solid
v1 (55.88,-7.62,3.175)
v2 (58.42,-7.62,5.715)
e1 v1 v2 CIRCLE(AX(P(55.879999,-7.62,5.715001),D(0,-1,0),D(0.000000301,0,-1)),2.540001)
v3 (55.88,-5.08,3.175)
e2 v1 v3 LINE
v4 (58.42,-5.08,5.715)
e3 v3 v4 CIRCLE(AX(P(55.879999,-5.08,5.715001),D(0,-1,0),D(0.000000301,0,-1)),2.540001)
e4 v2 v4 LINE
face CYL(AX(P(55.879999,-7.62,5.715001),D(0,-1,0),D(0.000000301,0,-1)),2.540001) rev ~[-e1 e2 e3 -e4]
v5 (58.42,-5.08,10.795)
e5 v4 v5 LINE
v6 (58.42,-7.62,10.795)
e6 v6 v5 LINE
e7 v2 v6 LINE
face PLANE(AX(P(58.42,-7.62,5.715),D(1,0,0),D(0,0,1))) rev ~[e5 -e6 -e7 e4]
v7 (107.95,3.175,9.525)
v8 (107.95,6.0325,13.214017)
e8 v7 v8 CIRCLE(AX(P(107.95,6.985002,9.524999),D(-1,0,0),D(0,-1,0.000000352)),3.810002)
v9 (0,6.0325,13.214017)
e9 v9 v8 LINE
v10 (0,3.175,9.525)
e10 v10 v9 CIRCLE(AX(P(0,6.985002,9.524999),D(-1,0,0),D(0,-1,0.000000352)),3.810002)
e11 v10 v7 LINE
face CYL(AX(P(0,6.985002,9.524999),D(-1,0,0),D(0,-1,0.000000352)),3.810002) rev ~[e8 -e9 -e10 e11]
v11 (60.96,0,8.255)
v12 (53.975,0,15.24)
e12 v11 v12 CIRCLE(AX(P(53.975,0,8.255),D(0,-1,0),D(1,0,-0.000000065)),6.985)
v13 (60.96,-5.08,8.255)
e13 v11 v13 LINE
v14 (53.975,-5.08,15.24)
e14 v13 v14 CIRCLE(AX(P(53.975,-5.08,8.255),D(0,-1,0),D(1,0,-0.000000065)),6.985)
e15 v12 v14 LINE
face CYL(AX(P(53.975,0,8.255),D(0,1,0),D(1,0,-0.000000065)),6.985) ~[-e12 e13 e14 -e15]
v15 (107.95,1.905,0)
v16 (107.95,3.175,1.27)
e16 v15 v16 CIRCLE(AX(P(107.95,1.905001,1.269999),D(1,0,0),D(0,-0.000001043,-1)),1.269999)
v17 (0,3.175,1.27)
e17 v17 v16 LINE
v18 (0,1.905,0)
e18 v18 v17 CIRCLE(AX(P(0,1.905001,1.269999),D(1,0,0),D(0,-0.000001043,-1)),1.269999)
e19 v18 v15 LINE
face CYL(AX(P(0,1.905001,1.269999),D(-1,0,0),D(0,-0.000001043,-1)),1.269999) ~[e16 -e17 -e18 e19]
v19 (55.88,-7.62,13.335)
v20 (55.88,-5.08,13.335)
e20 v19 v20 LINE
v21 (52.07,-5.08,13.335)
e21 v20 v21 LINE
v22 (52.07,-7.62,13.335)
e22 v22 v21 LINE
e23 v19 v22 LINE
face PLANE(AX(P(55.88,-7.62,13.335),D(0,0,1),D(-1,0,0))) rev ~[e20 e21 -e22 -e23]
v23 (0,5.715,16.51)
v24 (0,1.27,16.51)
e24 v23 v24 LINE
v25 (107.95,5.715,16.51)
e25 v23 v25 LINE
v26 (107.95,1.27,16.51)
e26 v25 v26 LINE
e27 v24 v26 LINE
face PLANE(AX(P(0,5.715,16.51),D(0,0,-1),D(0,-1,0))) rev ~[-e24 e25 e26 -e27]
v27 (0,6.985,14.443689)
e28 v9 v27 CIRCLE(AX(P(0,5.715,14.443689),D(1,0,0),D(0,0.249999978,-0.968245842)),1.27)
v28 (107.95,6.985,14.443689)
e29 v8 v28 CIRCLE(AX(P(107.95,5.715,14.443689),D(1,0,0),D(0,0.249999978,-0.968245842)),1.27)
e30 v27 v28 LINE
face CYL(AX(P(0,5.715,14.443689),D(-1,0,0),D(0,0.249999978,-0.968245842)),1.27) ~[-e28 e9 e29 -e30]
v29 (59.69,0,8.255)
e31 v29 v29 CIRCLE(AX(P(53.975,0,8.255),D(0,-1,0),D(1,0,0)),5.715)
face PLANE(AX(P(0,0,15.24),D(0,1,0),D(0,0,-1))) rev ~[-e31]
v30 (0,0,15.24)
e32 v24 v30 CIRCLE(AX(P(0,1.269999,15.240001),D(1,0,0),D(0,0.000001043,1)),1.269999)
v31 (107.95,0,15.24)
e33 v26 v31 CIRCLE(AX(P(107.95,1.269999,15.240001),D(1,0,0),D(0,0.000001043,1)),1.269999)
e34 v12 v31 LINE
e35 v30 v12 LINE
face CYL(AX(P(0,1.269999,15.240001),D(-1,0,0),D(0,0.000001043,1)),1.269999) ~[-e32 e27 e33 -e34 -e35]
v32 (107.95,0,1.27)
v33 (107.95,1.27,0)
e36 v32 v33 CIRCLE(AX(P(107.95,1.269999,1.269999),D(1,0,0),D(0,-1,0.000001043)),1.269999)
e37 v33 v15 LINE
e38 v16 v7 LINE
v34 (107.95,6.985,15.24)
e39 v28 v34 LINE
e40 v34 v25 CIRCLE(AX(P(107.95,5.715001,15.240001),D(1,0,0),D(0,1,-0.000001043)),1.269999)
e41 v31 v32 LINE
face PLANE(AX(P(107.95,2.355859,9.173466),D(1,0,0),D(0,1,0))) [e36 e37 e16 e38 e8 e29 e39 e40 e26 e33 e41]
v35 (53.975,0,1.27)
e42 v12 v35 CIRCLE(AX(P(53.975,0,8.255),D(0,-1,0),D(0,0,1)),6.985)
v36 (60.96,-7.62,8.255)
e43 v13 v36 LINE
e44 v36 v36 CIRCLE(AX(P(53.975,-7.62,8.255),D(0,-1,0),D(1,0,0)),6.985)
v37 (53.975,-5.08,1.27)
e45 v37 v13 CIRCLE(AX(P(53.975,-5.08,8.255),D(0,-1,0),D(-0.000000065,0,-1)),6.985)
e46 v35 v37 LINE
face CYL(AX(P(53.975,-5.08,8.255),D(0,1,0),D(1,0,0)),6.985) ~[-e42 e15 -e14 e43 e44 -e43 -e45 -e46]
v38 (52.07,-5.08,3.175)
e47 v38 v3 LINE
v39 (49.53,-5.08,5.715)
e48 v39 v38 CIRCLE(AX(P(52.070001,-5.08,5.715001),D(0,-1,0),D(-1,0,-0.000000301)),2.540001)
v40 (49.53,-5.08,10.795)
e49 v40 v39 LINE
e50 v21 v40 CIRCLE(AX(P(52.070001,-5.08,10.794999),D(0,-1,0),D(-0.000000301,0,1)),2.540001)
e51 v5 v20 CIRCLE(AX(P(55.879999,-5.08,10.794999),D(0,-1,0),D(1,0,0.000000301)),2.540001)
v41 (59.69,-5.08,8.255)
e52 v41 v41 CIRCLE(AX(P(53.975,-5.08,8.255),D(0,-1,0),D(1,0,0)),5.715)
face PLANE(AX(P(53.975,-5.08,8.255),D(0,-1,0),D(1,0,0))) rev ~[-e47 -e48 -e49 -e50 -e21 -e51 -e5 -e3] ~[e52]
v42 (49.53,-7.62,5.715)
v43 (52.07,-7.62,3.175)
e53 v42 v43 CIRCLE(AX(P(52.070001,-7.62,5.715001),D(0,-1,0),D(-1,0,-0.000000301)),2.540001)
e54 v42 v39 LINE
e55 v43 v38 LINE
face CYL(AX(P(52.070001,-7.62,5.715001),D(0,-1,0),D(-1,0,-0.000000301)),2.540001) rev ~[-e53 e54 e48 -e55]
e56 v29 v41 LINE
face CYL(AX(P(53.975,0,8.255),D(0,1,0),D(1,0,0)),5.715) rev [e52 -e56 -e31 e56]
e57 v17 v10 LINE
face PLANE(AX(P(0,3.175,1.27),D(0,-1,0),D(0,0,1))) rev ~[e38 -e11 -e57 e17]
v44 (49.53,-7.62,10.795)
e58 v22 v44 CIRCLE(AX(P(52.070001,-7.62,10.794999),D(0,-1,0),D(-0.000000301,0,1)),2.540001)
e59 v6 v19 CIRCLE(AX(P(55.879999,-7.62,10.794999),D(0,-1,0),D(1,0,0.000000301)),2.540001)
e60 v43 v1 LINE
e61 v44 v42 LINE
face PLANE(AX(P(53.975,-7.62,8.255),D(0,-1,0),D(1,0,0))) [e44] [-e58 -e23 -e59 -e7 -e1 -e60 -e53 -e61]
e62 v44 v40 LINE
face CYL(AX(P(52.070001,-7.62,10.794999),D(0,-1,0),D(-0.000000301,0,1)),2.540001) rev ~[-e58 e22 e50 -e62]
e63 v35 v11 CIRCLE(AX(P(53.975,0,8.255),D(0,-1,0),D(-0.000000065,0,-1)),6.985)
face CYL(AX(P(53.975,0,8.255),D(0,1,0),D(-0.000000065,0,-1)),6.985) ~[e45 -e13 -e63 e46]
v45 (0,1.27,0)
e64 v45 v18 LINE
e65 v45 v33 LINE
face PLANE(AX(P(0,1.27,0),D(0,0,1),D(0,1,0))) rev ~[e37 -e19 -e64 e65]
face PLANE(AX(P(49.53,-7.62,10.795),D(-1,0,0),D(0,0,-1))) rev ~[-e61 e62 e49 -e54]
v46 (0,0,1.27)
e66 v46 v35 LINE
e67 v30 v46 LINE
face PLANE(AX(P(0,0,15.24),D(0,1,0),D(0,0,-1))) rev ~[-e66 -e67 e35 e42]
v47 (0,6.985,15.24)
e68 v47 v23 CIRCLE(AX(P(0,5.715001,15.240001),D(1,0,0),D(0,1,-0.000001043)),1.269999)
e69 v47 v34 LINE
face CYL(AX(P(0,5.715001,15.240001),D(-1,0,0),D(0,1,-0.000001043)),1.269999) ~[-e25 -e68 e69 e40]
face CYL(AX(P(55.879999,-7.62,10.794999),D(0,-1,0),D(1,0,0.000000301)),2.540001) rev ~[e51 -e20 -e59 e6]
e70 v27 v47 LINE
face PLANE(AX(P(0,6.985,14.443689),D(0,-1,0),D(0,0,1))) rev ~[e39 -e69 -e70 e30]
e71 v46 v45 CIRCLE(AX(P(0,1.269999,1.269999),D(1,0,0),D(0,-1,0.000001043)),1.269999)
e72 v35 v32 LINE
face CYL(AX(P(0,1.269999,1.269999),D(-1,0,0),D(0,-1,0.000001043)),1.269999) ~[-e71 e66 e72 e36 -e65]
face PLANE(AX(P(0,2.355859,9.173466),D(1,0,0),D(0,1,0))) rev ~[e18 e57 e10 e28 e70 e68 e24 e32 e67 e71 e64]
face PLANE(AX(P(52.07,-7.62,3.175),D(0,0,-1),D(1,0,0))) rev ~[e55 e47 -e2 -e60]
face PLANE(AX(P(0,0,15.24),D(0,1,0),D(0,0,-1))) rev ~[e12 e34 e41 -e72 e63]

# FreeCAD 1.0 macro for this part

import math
import FreeCAD as App
import Part
import Sketcher

V = App.Vector
Q = App.Units.Quantity

doc = App.newDocument("Part")
params = doc.addObject("Spreadsheet::Sheet", "Params")
for row, (alias, value) in enumerate([
    ("sketch1_radius", "0.0499999 in"),
    ("sketch1_radius2", "0.1500001 in"),
    ("sketch1_height", "0.55 in"),
    ("sketch1_width", "0.025 in"),
    ("sketch1_height2", "0.325 in"),
    ("pad1_length", "4.25 in"),
    ("sketch2_diameter", "0.45 in"),
    ("sketch2_radius", "0.275 in"),
    ("pad2_length", "0.2 in"),
    ("sketch3_diameter", "0.55 in"),
    ("pad3_length", "0.1 in"),
    ("sketch4_radius", "0.1 in"),
    ("sketch4_height", "0.2 in"),
    ("sketch4_width", "0.15 in"),
    ("pocket1_length", "0.2 in"),
], start=1):
    params.set(f"A{row}", alias)
    params.set(f"B{row}", "=" + value)
    params.setAlias(f"B{row}", alias)

body = doc.addObject("PartDesign::Body", "Body")

sketch1 = doc.addObject("Sketcher::SketchObject", "Sketch")
body.addObject(sketch1)
sketch1.AttachmentSupport = (doc.YZ_Plane, [""])
sketch1.MapMode = "FlatFace"
sketch1.addGeometry(Part.ArcOfCircle(Part.Circle(V(1.3, 1.3, 0), V(0, 0, 1), 1.3), math.radians(180), math.radians(270)), False)
sketch1.addGeometry(Part.LineSegment(V(1.3, 0, 0), V(1.9, 0, 0)), False)
sketch1.addGeometry(Part.ArcOfCircle(Part.Circle(V(1.9, 1.3, 0), V(0, 0, 1), 1.3), math.radians(-90), math.radians(0)), False)
sketch1.addGeometry(Part.LineSegment(V(3.2, 1.3, 0), V(3.2, 9.5, 0)), False)
sketch1.addGeometry(Part.ArcOfCircle(Part.Circle(V(7, 9.5, 0), V(0, 0, 1), 3.8), math.radians(104), math.radians(180)), False)
sketch1.addGeometry(Part.ArcOfCircle(Part.Circle(V(5.7, 14.4, 0), V(0, 0, 1), 1.3), math.radians(-76), math.radians(0)), False)
sketch1.addGeometry(Part.LineSegment(V(7, 14.4, 0), V(7, 15.2, 0)), False)
sketch1.addGeometry(Part.ArcOfCircle(Part.Circle(V(5.7, 15.2, 0), V(0, 0, 1), 1.3), math.radians(0), math.radians(90)), False)
sketch1.addGeometry(Part.LineSegment(V(5.7, 16.5, 0), V(1.3, 16.5, 0)), False)
sketch1.addGeometry(Part.ArcOfCircle(Part.Circle(V(1.3, 15.2, 0), V(0, 0, 1), 1.3), math.radians(90), math.radians(180)), False)
sketch1.addGeometry(Part.LineSegment(V(0, 15.2, 0), V(0, 1.3, 0)), False)
sketch1.addConstraint(Sketcher.Constraint("Tangent", 0, 2, 1, 1))
sketch1.addConstraint(Sketcher.Constraint("Tangent", 1, 2, 2, 1))
sketch1.addConstraint(Sketcher.Constraint("Tangent", 2, 2, 3, 1))
sketch1.addConstraint(Sketcher.Constraint("Tangent", 3, 2, 4, 2))
sketch1.addConstraint(Sketcher.Constraint("Tangent", 4, 1, 5, 1))
sketch1.addConstraint(Sketcher.Constraint("Tangent", 5, 2, 6, 1))
sketch1.addConstraint(Sketcher.Constraint("Tangent", 6, 2, 7, 1))
sketch1.addConstraint(Sketcher.Constraint("Tangent", 7, 2, 8, 1))
sketch1.addConstraint(Sketcher.Constraint("Tangent", 8, 2, 9, 1))
sketch1.addConstraint(Sketcher.Constraint("Tangent", 9, 2, 10, 1))
sketch1.addConstraint(Sketcher.Constraint("Tangent", 10, 2, 0, 1))
sketch1.addConstraint(Sketcher.Constraint("Horizontal", 1))
sketch1.addConstraint(Sketcher.Constraint("Vertical", 3))
sketch1.addConstraint(Sketcher.Constraint("Vertical", 6))
sketch1.addConstraint(Sketcher.Constraint("Horizontal", 8))
sketch1.addConstraint(Sketcher.Constraint("Vertical", 10))
sketch1.addConstraint(Sketcher.Constraint("Equal", 0, 2))
sketch1.addConstraint(Sketcher.Constraint("Equal", 2, 5))
sketch1.addConstraint(Sketcher.Constraint("Equal", 5, 7))
sketch1.addConstraint(Sketcher.Constraint("Equal", 7, 9))
sketch1.addConstraint(Sketcher.Constraint("PointOnObject", 0, 2, -1))
sketch1.addConstraint(Sketcher.Constraint("PointOnObject", 9, 2, -2))
sketch1.addConstraint(Sketcher.Constraint("Radius", 0, Q("0.0499999 in")))
sketch1.addConstraint(Sketcher.Constraint("Radius", 4, Q("0.1500001 in")))
sketch1.addConstraint(Sketcher.Constraint("DistanceY", 10, 2, 10, 1, Q("0.55 in")))
sketch1.addConstraint(Sketcher.Constraint("DistanceX", 3, 2, 5, 3, Q("0.1 in")))
sketch1.addConstraint(Sketcher.Constraint("DistanceX", 1, 1, 1, 2, Q("0.025 in")))
sketch1.addConstraint(Sketcher.Constraint("DistanceY", 3, 1, 3, 2, Q("0.325 in")))
sketch1.setExpression("Constraints[22]", "Params.sketch1_radius")
sketch1.setExpression("Constraints[23]", "Params.sketch1_radius2")
sketch1.setExpression("Constraints[24]", "Params.sketch1_height")
sketch1.setExpression("Constraints[26]", "Params.sketch1_width")
sketch1.setExpression("Constraints[27]", "Params.sketch1_height2")
pad1 = doc.addObject("PartDesign::Pad", "Pad")
body.addObject(pad1)
pad1.Profile = sketch1
pad1.setExpression("Length", "Params.pad1_length")

sketch2 = doc.addObject("Sketcher::SketchObject", "Sketch001")
body.addObject(sketch2)
sketch2.AttachmentSupport = (doc.XZ_Plane, [""])
sketch2.MapMode = "FlatFace"
sketch2.addGeometry(Part.ArcOfCircle(Part.Circle(V(54, 8, 0), V(0, 0, 1), 7), math.radians(-90), math.radians(0)), False)
sketch2.addGeometry(Part.ArcOfCircle(Part.Circle(V(54, 8, 0), V(0, 0, 1), 7), math.radians(0), math.radians(90)), False)
sketch2.addGeometry(Part.ArcOfCircle(Part.Circle(V(54, 8, 0), V(0, 0, 1), 7), math.radians(90), math.radians(270)), False)
sketch2.addGeometry(Part.Circle(V(54, 8, 0), V(0, 0, 1), 6), False)
sketch2.addConstraint(Sketcher.Constraint("Tangent", 0, 2, 1, 1))
sketch2.addConstraint(Sketcher.Constraint("Tangent", 1, 2, 2, 1))
sketch2.addConstraint(Sketcher.Constraint("Tangent", 2, 2, 0, 1))
sketch2.addConstraint(Sketcher.Constraint("Coincident", 3, 3, 0, 3))
sketch2.addConstraint(Sketcher.Constraint("Horizontal", 3, 3, 0, 2))
sketch2.addConstraint(Sketcher.Constraint("Vertical", 3, 3, 1, 2))
sketch2.addConstraint(Sketcher.Constraint("Vertical", 1, 2, 2, 2))
sketch2.addConstraint(Sketcher.Constraint("Diameter", 3, Q("0.45 in")))
sketch2.addConstraint(Sketcher.Constraint("Radius", 0, Q("0.275 in")))
sketch2.addConstraint(Sketcher.Constraint("DistanceX", -1, 1, 0, 2, Q("2.4 in")))
sketch2.addConstraint(Sketcher.Constraint("DistanceY", -1, 1, 1, 2, Q("0.6 in")))
sketch2.setExpression("Constraints[7]", "Params.sketch2_diameter")
sketch2.setExpression("Constraints[8]", "Params.sketch2_radius")
pad2 = doc.addObject("PartDesign::Pad", "Pad001")
body.addObject(pad2)
pad2.Profile = sketch2
pad2.setExpression("Length", "Params.pad2_length")

sketch3 = doc.addObject("Sketcher::SketchObject", "Sketch002")
body.addObject(sketch3)
sketch3.AttachmentSupport = (doc.XZ_Plane, [""])
sketch3.MapMode = "FlatFace"
sketch3.AttachmentOffset = App.Placement(V(0, 0, 0.2 * 25.4), App.Rotation())
sketch3.addGeometry(Part.Circle(V(54, 8, 0), V(0, 0, 1), 7), False)
sketch3.addConstraint(Sketcher.Constraint("Diameter", 0, Q("0.55 in")))
sketch3.addConstraint(Sketcher.Constraint("DistanceX", -1, 1, 0, 3, Q("2.125 in")))
sketch3.addConstraint(Sketcher.Constraint("DistanceY", -1, 1, 0, 3, Q("0.325 in")))
sketch3.setExpression("Constraints[0]", "Params.sketch3_diameter")
pad3 = doc.addObject("PartDesign::Pad", "Pad002")
body.addObject(pad3)
pad3.Profile = sketch3
pad3.setExpression("Length", "Params.pad3_length")

sketch4 = doc.addObject("Sketcher::SketchObject", "Sketch003")
body.addObject(sketch4)
sketch4.AttachmentSupport = (doc.XZ_Plane, [""])
sketch4.MapMode = "FlatFace"
sketch4.AttachmentOffset = App.Placement(V(0, 0, 0.3 * 25.4), App.Rotation())
sketch4.addGeometry(Part.LineSegment(V(55.9, 13.3, 0), V(52.1, 13.3, 0)), False)
sketch4.addGeometry(Part.ArcOfCircle(Part.Circle(V(52.1, 10.8, 0), V(0, 0, 1), 2.5), math.radians(90), math.radians(180)), False)
sketch4.addGeometry(Part.LineSegment(V(49.5, 10.8, 0), V(49.5, 5.7, 0)), False)
sketch4.addGeometry(Part.ArcOfCircle(Part.Circle(V(52.1, 5.7, 0), V(0, 0, 1), 2.5), math.radians(-180), math.radians(-90)), False)
sketch4.addGeometry(Part.LineSegment(V(52.1, 3.2, 0), V(55.9, 3.2, 0)), False)
sketch4.addGeometry(Part.ArcOfCircle(Part.Circle(V(55.9, 5.7, 0), V(0, 0, 1), 2.5), math.radians(-90), math.radians(0)), False)
sketch4.addGeometry(Part.LineSegment(V(58.4, 5.7, 0), V(58.4, 10.8, 0)), False)
sketch4.addGeometry(Part.ArcOfCircle(Part.Circle(V(55.9, 10.8, 0), V(0, 0, 1), 2.5), math.radians(0), math.radians(90)), False)
sketch4.addConstraint(Sketcher.Constraint("Tangent", 0, 2, 1, 1))
sketch4.addConstraint(Sketcher.Constraint("Tangent", 1, 2, 2, 1))
sketch4.addConstraint(Sketcher.Constraint("Tangent", 2, 2, 3, 1))
sketch4.addConstraint(Sketcher.Constraint("Tangent", 3, 2, 4, 1))
sketch4.addConstraint(Sketcher.Constraint("Tangent", 4, 2, 5, 1))
sketch4.addConstraint(Sketcher.Constraint("Tangent", 5, 2, 6, 1))
sketch4.addConstraint(Sketcher.Constraint("Tangent", 6, 2, 7, 1))
sketch4.addConstraint(Sketcher.Constraint("Tangent", 7, 2, 0, 1))
sketch4.addConstraint(Sketcher.Constraint("Horizontal", 0))
sketch4.addConstraint(Sketcher.Constraint("Vertical", 2))
sketch4.addConstraint(Sketcher.Constraint("Horizontal", 4))
sketch4.addConstraint(Sketcher.Constraint("Vertical", 6))
sketch4.addConstraint(Sketcher.Constraint("Equal", 1, 3))
sketch4.addConstraint(Sketcher.Constraint("Equal", 3, 5))
sketch4.addConstraint(Sketcher.Constraint("Equal", 5, 7))
sketch4.addConstraint(Sketcher.Constraint("Radius", 1, Q("0.1 in")))
sketch4.addConstraint(Sketcher.Constraint("DistanceY", 2, 2, 2, 1, Q("0.2 in")))
sketch4.addConstraint(Sketcher.Constraint("DistanceX", 0, 2, 0, 1, Q("0.15 in")))
sketch4.addConstraint(Sketcher.Constraint("DistanceX", -1, 1, 5, 3, Q("2.2 in")))
sketch4.addConstraint(Sketcher.Constraint("DistanceY", -1, 1, 1, 3, Q("0.425 in")))
sketch4.setExpression("Constraints[15]", "Params.sketch4_radius")
sketch4.setExpression("Constraints[16]", "Params.sketch4_height")
sketch4.setExpression("Constraints[17]", "Params.sketch4_width")
pocket1 = doc.addObject("PartDesign::Pocket", "Pocket")
body.addObject(pocket1)
pocket1.Profile = sketch4
pocket1.setExpression("Length", "Params.pocket1_length")

doc.recompute()
